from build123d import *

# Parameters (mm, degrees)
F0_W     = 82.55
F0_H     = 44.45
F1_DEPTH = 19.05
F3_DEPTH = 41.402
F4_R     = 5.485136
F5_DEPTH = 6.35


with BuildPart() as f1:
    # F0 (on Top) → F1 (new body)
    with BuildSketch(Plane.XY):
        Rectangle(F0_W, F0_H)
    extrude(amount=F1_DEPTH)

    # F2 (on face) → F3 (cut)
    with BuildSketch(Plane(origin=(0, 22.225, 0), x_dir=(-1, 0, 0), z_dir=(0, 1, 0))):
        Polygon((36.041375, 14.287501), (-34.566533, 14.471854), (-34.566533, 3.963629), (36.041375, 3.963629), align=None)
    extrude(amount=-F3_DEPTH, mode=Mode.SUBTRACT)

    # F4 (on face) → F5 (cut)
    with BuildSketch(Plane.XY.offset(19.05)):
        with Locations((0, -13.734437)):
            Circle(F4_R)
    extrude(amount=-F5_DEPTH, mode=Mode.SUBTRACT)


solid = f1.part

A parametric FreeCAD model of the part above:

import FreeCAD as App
import Part
import Sketcher

V = App.Vector
Q = App.Units.Quantity


def add_polygon(sketch, points):
    """Adds a closed chain of lines whose ends are joined by coincident constraints."""
    first, n = sketch.GeometryCount, len(points)
    for a, b in zip(points, points[1:] + points[:1]):
        sketch.addGeometry(Part.LineSegment(App.Vector(*a, 0), App.Vector(*b, 0)), False)
    for i in range(n):
        sketch.addConstraint(Sketcher.Constraint("Coincident", first + i, 2, first + (i + 1) % n, 1))

doc = App.newDocument("Part")
body = doc.addObject("PartDesign::Body", "Body")

sketch1 = body.newObject("Sketcher::SketchObject", "Sketch")
sketch1.AttachmentSupport = (doc.getObject("XY_Plane"), [""])
sketch1.MapMode = "FlatFace"
add_polygon(sketch1, [(-41, 22), (-41, -22), (41, -22), (41, 22)])
sketch1.addConstraint(Sketcher.Constraint("Vertical", 0))
sketch1.addConstraint(Sketcher.Constraint("Horizontal", 1))
sketch1.addConstraint(Sketcher.Constraint("Vertical", 2))
sketch1.addConstraint(Sketcher.Constraint("Horizontal", 3))
sketch1.addConstraint(Sketcher.Constraint("Symmetric", 0, 2, 2, 2, -1, 1))
sketch1.addConstraint(Sketcher.Constraint("DistanceX", 1, 1, 1, 2, Q("3.25 in")))
sketch1.addConstraint(Sketcher.Constraint("DistanceY", 0, 2, 0, 1, Q("1.75 in")))
pad1 = body.newObject("PartDesign::Pad", "Pad")
pad1.Profile = sketch1
pad1.Length = Q("0.75 in")

sketch2 = body.newObject("Sketcher::SketchObject", "Sketch001")
sketch2.AttachmentSupport = (doc.getObject("XZ_Plane"), [""])
sketch2.MapMode = "FlatFace"
sketch2.AttachmentOffset = App.Placement(V(0, 0, -0.875 * 25.4), App.Rotation())
add_polygon(sketch2, [(-36, 14), (35, 14), (35, 4), (-36, 4)])
sketch2.addConstraint(Sketcher.Constraint("Vertical", 1))
sketch2.addConstraint(Sketcher.Constraint("Horizontal", 2))
sketch2.addConstraint(Sketcher.Constraint("Vertical", 3))
sketch2.addConstraint(Sketcher.Constraint("DistanceY", -1, 1, 3, 2, Q("0.5625 in")))
sketch2.addConstraint(Sketcher.Constraint("DistanceX", 2, 2, 2, 1, 70.607908))
sketch2.addConstraint(Sketcher.Constraint("DistanceY", 1, 2, 1, 1, 10.508225))
sketch2.addConstraint(Sketcher.Constraint("DistanceY", 3, 1, 3, 2, 10.323872))
sketch2.addConstraint(Sketcher.Constraint("DistanceX", -1, 1, 0, 2, 34.566533))
pocket1 = body.newObject("PartDesign::Pocket", "Pocket")
pocket1.Profile = sketch2
pocket1.Length = Q("1.63 in")
pocket1.Reversed = True

sketch3 = body.newObject("Sketcher::SketchObject", "Sketch002")
sketch3.AttachmentSupport = (doc.getObject("XY_Plane"), [""])
sketch3.MapMode = "FlatFace"
sketch3.AttachmentOffset = App.Placement(V(0, 0, 0.75 * 25.4), App.Rotation())
sketch3.addGeometry(Part.Circle(V(0, -14, 0), V(0, 0, 1), 5), False)
sketch3.addConstraint(Sketcher.Constraint("PointOnObject", 0, 3, -2))
sketch3.addConstraint(Sketcher.Constraint("Diameter", 0, 10.970272))
sketch3.addConstraint(Sketcher.Constraint("DistanceY", 0, 3, -1, 1, 13.734437))
pocket2 = body.newObject("PartDesign::Pocket", "Pocket001")
pocket2.Profile = sketch3
pocket2.Length = Q("0.25 in")

doc.recompute()
